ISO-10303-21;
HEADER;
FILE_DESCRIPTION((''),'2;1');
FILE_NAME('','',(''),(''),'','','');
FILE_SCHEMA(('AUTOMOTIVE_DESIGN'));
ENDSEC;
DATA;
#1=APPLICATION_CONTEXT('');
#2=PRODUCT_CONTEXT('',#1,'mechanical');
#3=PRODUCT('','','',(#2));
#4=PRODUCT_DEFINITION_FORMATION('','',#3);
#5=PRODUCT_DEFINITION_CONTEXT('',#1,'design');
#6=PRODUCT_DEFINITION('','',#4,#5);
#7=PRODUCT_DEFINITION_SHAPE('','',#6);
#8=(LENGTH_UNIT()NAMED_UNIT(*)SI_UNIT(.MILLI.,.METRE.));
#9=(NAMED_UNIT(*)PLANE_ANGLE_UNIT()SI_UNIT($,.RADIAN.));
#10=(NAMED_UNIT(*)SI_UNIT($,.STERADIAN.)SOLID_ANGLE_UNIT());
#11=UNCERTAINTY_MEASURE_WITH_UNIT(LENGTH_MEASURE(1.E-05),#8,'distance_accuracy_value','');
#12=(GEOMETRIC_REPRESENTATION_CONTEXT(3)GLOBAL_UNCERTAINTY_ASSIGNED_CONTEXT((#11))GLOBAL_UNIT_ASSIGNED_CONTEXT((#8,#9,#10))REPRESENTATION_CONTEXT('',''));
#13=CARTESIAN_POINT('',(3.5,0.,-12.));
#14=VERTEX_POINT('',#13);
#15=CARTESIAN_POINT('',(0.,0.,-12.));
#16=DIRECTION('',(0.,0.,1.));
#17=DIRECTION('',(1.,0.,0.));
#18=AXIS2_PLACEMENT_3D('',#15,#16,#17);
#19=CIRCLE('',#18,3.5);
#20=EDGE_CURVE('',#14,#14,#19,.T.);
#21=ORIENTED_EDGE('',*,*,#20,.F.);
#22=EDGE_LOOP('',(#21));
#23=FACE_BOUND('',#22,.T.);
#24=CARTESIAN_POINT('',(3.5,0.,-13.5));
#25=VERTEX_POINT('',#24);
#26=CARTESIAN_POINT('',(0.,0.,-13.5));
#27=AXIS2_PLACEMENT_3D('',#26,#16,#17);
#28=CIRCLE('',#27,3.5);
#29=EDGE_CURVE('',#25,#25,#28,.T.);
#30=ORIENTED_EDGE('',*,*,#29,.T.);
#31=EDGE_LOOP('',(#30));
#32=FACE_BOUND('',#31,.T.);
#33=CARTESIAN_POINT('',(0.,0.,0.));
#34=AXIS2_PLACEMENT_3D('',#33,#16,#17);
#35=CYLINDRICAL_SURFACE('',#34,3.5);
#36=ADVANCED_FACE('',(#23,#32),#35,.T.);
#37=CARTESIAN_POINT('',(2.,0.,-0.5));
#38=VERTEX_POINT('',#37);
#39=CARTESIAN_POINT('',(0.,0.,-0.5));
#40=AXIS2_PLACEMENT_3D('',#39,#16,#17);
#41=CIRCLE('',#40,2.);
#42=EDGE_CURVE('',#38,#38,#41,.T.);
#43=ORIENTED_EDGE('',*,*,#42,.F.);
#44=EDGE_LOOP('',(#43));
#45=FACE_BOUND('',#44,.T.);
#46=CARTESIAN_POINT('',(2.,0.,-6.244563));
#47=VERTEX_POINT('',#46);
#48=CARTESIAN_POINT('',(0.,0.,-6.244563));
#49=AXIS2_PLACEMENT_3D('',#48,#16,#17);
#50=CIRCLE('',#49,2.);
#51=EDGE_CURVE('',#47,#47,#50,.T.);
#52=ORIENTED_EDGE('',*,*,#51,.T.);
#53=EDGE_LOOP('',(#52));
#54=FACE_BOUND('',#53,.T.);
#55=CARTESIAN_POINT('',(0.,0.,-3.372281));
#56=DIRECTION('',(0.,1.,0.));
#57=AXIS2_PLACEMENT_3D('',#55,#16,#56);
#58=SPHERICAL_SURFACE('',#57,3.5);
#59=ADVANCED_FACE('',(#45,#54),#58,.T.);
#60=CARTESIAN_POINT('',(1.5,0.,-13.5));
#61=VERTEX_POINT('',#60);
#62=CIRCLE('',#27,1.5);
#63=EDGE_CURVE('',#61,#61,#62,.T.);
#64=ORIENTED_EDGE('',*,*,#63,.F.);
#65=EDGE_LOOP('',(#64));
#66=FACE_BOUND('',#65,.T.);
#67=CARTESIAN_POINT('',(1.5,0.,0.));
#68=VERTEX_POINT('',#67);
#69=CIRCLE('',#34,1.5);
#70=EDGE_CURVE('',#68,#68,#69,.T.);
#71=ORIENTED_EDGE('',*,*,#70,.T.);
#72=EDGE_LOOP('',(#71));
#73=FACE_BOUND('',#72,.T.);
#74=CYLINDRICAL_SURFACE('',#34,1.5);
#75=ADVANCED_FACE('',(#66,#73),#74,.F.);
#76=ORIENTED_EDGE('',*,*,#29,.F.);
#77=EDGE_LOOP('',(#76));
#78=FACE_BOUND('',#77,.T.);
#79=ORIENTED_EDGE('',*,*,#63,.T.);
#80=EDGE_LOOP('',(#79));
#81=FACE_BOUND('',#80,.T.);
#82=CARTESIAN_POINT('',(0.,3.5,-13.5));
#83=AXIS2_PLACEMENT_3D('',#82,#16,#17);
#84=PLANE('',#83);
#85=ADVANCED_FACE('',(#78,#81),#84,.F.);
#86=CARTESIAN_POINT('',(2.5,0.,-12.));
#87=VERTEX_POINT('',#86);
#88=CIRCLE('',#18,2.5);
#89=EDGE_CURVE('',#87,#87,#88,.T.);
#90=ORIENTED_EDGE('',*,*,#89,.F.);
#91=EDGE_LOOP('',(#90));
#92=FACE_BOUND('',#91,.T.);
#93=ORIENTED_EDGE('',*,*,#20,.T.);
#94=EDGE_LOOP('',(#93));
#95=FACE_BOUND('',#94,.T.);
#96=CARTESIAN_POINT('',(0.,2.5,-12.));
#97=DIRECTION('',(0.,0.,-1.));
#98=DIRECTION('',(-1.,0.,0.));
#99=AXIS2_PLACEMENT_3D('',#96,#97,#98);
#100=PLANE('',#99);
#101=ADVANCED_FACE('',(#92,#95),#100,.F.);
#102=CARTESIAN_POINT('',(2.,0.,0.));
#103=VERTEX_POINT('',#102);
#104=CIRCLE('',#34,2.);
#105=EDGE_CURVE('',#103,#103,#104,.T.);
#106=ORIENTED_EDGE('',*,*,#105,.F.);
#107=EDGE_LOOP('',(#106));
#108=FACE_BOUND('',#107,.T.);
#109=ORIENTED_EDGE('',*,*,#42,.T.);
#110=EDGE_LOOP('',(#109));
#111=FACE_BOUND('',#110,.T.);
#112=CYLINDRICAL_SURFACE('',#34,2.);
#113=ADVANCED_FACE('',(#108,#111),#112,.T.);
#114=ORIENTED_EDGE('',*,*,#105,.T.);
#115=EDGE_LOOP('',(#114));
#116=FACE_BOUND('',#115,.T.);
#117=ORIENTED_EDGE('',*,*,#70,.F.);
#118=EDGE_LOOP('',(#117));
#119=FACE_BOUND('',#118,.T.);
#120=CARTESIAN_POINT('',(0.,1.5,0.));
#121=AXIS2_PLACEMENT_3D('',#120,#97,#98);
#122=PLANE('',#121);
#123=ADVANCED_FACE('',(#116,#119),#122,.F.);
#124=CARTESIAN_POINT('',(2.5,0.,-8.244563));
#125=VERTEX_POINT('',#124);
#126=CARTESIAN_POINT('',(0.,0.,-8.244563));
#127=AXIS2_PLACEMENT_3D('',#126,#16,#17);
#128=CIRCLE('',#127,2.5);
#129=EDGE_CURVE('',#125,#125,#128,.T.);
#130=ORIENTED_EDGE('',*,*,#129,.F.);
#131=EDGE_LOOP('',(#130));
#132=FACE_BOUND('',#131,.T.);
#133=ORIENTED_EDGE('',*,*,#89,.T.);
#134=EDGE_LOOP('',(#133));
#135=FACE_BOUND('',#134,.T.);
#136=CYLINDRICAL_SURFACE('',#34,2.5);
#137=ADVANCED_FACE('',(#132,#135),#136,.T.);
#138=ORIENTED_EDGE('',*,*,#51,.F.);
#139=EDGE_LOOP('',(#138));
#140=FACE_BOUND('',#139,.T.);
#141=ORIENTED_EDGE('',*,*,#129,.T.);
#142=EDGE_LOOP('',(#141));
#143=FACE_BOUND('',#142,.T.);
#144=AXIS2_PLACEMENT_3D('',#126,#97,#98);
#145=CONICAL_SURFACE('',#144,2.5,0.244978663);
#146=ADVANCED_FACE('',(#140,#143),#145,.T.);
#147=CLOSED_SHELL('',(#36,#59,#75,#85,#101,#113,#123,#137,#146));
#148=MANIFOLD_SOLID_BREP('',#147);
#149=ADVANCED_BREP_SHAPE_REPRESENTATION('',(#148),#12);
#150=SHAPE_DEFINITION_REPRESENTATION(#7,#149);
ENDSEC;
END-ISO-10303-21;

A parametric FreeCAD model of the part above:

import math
import FreeCAD as App
import Part
import Sketcher
from FreeCAD import Vector
Q = App.Units.Quantity

doc = App.newDocument("Part")
body = doc.addObject("PartDesign::Body", "Body")

# Sketch on YZ plane
sketch1 = body.newObject("Sketcher::SketchObject", "Sketch")
sketch1.AttachmentSupport = (doc.getObject("YZ_Plane"), [""])
sketch1.MapMode = "FlatFace"
sketch1.addGeometry([
    Part.LineSegment(Vector(2.5, -8.244563, 0), Vector(2, -6.244563, 0)),  # 0
    Part.ArcOfCircle(Part.Circle(Vector(0, -3.372281, 0), Vector(0, 0, 1), 3.5), math.radians(-55.150095), math.radians(55.150095)),  # 1
    Part.LineSegment(Vector(2, -0.5, 0), Vector(2, 0, 0)),  # 2
    Part.LineSegment(Vector(2, 0, 0), Vector(1.5, 0, 0)),  # 3
    Part.LineSegment(Vector(1.5, 0, 0), Vector(1.5, -13.5, 0)),  # 4
    Part.LineSegment(Vector(1.5, -13.5, 0), Vector(3.5, -13.5, 0)),  # 5
    Part.LineSegment(Vector(3.5, -13.5, 0), Vector(3.5, -12, 0)),  # 6
    Part.LineSegment(Vector(3.5, -12, 0), Vector(2.5, -12, 0)),  # 7
    Part.LineSegment(Vector(2.5, -12, 0), Vector(2.5, -8.244563, 0)),  # 8
], False)
sketch1.addConstraint([
    Sketcher.Constraint("Coincident", 0, 2, 1, 1),
    Sketcher.Constraint("Coincident", 1, 2, 2, 1),
    Sketcher.Constraint("Coincident", 2, 2, 3, 1),
    Sketcher.Constraint("Coincident", 3, 2, 4, 1),
    Sketcher.Constraint("Coincident", 4, 2, 5, 1),
    Sketcher.Constraint("Coincident", 5, 2, 6, 1),
    Sketcher.Constraint("Coincident", 6, 2, 7, 1),
    Sketcher.Constraint("Coincident", 7, 2, 8, 1),
    Sketcher.Constraint("Coincident", 8, 2, 0, 1),
    Sketcher.Constraint("Vertical", 2),
    Sketcher.Constraint("Horizontal", 3),
    Sketcher.Constraint("Vertical", 4),
    Sketcher.Constraint("Horizontal", 5),
    Sketcher.Constraint("Vertical", 6),
    Sketcher.Constraint("Horizontal", 7),
    Sketcher.Constraint("Vertical", 8),
    Sketcher.Constraint("PointOnObject", 1, 3, -2),
    Sketcher.Constraint("PointOnObject", 2, 2, -1),
    Sketcher.Constraint("Vertical", 0, 2, 1, 2),
    Sketcher.Constraint("Equal", 3, 2),
    Sketcher.Constraint("Radius", 1, Q("3.5 mm")),
    Sketcher.Constraint("DistanceX", 5, 1, 5, 2, Q("2 mm")),
    Sketcher.Constraint("DistanceX", 7, 2, 7, 1, Q("1 mm")),
    Sketcher.Constraint("DistanceX", 3, 2, 3, 1, Q("0.5 mm")),
    Sketcher.Constraint("DistanceY", 4, 2, 4, 1, Q("13.5 mm")),
    Sketcher.Constraint("DistanceY", 6, 1, 6, 2, Q("1.5 mm")),
    Sketcher.Constraint("DistanceX", -1, 1, 0, 2, Q("2 mm")),
    Sketcher.Constraint("DistanceY", 8, 2, 0, 2, Q("2 mm")),
])
revolution = body.newObject("PartDesign::Revolution", "Revolution")
revolution.Profile = sketch1
revolution.ReferenceAxis = (sketch1, ["V_Axis"])
revolution.Angle = 360

doc.recompute()
